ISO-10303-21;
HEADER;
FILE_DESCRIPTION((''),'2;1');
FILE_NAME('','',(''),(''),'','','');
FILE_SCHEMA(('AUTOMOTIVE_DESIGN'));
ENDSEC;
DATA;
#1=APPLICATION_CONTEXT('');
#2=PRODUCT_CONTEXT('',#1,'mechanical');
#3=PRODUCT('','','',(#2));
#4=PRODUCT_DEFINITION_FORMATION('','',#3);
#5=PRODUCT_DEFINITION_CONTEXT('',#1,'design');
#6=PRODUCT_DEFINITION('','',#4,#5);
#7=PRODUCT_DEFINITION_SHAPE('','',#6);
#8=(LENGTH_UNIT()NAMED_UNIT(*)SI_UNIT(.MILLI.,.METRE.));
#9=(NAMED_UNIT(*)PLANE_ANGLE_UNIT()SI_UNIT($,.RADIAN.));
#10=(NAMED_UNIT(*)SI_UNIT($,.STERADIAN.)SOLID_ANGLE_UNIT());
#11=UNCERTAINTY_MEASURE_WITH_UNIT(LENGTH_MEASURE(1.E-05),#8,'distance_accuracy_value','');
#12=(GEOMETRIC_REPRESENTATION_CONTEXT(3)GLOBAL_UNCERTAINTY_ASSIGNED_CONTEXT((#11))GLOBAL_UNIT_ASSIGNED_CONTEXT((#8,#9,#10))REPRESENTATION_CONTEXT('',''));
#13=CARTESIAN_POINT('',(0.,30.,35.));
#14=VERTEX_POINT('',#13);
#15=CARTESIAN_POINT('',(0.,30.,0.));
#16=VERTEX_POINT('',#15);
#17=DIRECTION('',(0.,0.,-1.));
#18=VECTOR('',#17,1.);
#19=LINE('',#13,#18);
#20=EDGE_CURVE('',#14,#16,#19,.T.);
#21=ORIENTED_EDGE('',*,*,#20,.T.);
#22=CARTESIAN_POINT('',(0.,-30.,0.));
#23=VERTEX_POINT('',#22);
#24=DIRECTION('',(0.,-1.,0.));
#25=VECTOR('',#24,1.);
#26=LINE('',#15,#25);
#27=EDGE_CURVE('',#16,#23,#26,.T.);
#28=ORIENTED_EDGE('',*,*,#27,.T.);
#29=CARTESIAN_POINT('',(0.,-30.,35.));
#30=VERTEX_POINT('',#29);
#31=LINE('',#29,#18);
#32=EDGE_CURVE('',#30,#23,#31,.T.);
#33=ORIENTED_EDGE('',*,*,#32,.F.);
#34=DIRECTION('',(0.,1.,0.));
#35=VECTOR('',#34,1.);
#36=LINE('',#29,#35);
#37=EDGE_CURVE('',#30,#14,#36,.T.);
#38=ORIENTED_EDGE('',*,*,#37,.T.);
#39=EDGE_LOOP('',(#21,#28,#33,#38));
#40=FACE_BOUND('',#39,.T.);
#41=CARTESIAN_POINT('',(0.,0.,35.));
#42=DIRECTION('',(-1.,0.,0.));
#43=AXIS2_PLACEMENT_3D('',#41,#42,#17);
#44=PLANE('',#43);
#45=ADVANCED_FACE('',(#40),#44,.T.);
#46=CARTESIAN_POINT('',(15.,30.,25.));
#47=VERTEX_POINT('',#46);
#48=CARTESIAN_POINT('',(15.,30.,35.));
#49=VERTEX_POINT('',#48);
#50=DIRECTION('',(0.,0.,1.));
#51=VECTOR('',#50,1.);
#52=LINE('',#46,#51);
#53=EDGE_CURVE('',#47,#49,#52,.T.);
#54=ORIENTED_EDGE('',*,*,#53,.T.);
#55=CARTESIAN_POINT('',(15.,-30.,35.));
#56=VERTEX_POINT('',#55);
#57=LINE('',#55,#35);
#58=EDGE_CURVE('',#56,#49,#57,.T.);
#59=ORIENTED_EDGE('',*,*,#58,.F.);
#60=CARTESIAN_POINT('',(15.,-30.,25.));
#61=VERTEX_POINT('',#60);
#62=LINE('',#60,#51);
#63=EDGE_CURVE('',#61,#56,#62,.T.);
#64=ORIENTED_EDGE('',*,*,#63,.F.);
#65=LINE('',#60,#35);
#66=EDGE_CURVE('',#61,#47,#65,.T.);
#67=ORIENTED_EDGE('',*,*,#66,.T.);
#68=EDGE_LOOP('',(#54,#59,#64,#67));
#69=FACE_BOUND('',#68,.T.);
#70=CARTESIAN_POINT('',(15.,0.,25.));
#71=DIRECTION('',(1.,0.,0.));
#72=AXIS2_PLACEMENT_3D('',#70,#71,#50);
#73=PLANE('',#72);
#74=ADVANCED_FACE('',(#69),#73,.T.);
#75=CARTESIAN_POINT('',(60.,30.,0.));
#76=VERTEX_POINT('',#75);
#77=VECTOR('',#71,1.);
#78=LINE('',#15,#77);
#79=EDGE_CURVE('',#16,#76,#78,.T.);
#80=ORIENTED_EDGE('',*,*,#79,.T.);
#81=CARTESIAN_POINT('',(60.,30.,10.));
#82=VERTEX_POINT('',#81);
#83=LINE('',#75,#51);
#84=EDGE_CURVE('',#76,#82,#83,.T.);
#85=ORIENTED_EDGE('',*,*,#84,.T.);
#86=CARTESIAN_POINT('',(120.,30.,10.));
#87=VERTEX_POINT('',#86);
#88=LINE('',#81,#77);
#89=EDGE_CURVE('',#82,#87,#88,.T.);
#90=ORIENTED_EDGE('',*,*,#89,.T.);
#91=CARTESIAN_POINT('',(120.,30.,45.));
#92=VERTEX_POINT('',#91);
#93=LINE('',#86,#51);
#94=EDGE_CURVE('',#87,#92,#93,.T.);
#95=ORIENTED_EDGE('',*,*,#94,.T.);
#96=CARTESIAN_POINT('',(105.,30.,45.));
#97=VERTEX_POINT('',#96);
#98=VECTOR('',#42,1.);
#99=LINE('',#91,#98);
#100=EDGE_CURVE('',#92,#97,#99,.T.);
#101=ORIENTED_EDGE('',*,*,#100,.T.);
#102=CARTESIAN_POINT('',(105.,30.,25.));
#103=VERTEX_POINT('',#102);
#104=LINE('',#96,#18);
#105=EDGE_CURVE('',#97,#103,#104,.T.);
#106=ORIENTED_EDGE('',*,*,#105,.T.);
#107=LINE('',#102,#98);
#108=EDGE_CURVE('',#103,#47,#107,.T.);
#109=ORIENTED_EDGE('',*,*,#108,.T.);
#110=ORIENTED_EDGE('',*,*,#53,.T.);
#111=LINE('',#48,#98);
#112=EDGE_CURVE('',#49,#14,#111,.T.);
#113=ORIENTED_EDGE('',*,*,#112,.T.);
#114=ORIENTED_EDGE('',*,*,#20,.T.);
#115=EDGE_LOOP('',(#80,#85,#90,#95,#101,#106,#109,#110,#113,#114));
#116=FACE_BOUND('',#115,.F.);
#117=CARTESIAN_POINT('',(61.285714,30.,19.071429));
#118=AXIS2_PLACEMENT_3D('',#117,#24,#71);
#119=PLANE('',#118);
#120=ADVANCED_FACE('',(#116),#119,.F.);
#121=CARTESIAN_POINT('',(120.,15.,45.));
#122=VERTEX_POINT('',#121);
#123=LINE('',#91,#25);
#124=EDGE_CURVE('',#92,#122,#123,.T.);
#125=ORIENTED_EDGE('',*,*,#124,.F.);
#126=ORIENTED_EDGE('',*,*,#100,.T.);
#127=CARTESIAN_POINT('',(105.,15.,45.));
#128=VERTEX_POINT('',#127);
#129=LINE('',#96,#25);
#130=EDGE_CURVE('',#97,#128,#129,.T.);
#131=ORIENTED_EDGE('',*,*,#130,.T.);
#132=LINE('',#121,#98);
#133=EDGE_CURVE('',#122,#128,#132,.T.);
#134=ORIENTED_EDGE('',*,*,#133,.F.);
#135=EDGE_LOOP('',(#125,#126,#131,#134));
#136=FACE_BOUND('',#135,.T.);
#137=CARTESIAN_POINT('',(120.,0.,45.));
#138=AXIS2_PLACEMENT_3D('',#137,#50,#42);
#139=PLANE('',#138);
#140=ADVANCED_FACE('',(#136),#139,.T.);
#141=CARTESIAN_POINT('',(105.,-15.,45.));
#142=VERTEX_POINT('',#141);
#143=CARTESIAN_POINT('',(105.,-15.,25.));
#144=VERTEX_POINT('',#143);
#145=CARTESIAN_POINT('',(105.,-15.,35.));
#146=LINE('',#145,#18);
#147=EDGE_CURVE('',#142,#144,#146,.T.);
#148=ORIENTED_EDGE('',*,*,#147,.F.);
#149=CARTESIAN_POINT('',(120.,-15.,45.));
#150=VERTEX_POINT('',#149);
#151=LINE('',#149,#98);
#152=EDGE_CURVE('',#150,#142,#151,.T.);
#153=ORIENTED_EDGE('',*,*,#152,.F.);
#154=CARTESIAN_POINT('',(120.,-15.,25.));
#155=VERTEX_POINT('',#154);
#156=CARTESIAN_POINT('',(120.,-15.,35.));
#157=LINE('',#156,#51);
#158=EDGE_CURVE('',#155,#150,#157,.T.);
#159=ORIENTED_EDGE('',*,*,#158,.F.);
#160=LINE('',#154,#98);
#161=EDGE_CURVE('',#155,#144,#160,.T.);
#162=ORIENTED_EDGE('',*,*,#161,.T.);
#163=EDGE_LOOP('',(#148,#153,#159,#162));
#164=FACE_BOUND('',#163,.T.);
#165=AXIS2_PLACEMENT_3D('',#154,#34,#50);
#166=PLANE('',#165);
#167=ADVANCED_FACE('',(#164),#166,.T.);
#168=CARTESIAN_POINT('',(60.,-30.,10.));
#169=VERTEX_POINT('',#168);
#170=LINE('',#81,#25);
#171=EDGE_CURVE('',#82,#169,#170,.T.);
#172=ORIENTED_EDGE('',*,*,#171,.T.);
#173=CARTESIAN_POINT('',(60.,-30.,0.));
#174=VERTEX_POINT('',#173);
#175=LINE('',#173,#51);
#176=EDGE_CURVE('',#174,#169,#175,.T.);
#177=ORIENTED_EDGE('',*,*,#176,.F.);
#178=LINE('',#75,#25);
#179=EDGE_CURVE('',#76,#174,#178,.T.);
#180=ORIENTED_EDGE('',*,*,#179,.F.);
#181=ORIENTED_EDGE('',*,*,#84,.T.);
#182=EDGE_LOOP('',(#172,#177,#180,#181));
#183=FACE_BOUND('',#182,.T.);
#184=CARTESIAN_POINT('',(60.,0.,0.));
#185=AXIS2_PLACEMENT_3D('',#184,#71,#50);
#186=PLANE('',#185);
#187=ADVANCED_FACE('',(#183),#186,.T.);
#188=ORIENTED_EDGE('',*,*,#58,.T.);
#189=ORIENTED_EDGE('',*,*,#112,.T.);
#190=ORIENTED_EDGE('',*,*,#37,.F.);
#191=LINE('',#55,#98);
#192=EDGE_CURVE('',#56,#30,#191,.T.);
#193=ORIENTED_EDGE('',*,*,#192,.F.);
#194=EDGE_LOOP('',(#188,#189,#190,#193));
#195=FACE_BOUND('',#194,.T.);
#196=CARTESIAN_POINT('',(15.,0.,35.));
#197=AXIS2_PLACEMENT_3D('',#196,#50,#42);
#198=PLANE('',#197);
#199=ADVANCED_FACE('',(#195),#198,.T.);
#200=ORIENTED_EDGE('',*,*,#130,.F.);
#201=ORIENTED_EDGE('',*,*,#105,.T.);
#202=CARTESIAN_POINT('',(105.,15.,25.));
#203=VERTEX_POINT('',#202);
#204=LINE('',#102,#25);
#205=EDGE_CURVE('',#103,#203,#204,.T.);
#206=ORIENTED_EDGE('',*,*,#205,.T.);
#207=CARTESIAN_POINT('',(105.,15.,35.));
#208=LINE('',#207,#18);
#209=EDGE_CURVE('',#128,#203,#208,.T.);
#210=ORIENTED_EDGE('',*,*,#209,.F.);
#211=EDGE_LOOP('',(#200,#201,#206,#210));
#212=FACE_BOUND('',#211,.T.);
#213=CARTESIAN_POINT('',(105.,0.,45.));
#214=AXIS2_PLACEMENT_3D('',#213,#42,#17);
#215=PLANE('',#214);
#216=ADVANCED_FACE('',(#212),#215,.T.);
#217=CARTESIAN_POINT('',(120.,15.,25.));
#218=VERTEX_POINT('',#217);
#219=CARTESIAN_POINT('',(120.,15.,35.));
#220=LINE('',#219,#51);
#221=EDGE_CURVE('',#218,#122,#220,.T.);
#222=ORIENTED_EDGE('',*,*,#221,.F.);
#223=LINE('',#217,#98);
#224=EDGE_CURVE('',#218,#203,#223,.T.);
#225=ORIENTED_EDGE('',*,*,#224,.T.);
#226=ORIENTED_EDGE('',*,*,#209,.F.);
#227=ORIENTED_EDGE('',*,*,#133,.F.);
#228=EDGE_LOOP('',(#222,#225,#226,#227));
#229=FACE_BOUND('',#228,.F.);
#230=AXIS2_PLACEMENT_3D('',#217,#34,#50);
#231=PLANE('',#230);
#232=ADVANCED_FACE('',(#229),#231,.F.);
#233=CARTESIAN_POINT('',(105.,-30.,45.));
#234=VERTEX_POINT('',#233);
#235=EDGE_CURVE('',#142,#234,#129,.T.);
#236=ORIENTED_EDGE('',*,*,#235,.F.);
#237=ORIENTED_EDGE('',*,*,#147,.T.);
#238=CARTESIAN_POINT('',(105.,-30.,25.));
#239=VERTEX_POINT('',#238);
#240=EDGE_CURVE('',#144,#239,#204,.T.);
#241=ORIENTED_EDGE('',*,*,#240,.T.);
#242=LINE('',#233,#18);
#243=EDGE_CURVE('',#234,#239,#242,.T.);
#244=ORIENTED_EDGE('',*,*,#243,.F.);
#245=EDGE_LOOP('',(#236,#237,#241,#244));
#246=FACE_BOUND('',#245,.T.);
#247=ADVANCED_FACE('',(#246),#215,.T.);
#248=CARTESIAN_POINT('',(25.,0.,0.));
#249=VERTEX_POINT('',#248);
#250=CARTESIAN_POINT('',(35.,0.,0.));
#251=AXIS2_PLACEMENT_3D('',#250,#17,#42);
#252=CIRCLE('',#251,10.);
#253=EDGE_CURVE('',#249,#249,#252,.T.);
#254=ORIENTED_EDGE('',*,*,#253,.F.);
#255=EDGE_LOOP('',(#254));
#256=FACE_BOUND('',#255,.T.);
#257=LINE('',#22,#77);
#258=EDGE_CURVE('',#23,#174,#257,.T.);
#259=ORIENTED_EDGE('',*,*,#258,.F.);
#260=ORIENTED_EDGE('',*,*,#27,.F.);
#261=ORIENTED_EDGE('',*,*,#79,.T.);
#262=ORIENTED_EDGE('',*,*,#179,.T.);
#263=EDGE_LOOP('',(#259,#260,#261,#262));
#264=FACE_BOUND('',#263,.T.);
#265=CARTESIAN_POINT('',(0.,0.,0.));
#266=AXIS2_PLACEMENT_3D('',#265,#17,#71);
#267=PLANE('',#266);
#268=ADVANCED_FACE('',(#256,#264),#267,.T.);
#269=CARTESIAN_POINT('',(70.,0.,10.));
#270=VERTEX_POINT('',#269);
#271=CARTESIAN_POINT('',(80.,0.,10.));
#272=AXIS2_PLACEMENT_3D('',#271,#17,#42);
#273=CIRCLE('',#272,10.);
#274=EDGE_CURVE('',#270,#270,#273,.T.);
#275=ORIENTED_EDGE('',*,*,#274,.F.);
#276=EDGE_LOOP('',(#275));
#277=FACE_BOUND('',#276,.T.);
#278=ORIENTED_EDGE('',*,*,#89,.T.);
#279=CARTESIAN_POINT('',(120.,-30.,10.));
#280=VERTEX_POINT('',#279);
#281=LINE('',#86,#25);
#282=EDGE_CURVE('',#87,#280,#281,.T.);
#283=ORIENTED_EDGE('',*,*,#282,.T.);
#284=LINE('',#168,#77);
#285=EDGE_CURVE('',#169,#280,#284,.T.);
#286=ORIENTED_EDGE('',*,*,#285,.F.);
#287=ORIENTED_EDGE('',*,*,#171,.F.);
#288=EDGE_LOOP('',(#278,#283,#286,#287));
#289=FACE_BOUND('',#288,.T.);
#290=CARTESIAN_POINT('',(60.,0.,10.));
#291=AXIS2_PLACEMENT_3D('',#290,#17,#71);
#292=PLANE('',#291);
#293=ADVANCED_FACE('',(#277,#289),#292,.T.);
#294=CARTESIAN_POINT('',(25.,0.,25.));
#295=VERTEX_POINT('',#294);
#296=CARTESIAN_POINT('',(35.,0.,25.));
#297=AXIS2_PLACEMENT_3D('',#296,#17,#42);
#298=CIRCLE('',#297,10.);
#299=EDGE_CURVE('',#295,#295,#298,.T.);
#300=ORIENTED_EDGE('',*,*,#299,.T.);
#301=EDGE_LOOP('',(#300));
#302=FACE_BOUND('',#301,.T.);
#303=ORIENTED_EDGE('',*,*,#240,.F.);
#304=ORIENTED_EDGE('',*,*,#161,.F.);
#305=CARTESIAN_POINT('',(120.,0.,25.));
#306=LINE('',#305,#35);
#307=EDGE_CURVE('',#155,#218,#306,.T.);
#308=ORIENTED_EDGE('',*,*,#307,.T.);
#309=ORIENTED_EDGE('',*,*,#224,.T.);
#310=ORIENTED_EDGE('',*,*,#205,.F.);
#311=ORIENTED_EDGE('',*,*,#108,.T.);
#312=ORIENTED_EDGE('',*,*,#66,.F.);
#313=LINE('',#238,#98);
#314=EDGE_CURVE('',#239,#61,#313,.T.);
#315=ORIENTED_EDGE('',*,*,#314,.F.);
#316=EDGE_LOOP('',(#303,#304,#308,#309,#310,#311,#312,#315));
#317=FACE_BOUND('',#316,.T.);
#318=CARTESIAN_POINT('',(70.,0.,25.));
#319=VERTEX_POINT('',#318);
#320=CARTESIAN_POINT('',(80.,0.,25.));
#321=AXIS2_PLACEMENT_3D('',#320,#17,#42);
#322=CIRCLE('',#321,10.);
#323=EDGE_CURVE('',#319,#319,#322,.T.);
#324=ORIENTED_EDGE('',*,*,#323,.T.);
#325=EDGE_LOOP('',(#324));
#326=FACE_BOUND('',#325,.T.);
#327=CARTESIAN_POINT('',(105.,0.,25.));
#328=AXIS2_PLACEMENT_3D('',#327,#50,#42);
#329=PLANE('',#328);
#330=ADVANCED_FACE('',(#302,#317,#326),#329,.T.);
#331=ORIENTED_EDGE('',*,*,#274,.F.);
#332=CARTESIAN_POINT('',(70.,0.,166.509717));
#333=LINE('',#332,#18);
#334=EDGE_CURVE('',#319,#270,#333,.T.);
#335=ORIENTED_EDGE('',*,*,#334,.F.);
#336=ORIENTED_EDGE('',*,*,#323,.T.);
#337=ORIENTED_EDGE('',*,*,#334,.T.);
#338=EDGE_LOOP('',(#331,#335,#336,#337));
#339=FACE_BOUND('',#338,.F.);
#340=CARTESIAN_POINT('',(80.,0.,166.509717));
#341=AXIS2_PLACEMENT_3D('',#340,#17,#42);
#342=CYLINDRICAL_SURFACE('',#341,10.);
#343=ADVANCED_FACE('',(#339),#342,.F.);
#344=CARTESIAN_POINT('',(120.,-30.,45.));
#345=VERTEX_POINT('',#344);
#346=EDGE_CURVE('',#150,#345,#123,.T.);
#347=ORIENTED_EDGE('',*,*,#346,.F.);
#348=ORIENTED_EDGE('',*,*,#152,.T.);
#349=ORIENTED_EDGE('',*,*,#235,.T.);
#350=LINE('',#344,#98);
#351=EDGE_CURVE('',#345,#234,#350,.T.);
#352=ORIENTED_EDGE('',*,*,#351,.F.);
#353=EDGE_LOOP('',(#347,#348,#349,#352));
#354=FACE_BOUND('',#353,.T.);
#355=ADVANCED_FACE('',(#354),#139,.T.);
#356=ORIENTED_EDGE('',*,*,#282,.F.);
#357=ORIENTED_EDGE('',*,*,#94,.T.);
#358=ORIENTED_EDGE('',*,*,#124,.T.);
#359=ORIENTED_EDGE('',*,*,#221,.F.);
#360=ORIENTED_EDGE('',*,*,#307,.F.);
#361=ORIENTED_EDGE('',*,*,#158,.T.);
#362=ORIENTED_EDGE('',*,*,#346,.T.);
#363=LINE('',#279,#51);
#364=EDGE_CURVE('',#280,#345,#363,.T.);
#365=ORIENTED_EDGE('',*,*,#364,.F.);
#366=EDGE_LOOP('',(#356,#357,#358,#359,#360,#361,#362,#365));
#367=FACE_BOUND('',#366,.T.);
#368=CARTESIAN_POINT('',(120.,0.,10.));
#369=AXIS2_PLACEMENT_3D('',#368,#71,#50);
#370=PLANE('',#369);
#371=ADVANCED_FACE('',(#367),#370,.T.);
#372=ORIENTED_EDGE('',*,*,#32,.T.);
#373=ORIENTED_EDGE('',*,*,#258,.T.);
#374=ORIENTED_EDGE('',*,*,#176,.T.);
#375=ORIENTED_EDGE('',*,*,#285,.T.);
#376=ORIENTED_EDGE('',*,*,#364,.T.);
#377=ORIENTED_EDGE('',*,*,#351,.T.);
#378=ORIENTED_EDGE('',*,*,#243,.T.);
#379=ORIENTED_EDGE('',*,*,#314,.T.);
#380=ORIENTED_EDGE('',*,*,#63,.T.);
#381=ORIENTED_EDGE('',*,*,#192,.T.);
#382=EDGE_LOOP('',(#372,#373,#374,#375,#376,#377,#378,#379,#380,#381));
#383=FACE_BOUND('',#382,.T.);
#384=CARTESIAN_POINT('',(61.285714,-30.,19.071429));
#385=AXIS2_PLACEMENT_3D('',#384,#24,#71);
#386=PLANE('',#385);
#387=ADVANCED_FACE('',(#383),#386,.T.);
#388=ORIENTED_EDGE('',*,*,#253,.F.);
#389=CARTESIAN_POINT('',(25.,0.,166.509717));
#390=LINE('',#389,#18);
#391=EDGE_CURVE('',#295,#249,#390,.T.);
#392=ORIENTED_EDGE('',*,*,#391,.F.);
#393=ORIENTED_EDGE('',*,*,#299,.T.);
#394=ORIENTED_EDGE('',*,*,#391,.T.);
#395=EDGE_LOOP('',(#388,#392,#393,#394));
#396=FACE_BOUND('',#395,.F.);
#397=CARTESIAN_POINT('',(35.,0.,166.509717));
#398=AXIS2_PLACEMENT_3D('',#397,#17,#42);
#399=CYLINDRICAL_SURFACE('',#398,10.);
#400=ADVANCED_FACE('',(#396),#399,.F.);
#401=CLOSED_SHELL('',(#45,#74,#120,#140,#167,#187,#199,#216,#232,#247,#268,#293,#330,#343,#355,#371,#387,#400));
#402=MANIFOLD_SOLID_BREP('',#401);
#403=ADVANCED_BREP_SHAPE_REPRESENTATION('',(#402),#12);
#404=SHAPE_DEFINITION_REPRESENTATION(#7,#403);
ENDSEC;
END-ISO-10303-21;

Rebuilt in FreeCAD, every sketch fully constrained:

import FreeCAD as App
import Part
import Sketcher
Q = App.Units.Quantity

doc = App.newDocument("Part")
params = doc.addObject("Spreadsheet::Sheet", "Params")
for row, (alias, value) in enumerate([
    ("sketch1_width", "60 mm"),
    ("sketch1_width2", "15 mm"),
    ("sketch1_height", "35 mm"),
    ("sketch1_height2", "10 mm"),
    ("pad1_length", "60 mm"),
    ("sketch2_width", "30 mm"),
    ("sketch2_height", "20 mm"),
    ("pocket1_length", "25 mm"),
    ("sketch3_diameter", "20 mm"),
    ("hole_diameter", "20 mm"),
], start=1):
    params.set(f"A{row}", alias)
    params.set(f"B{row}", "=" + value)
    params.setAlias(f"B{row}", alias)

body = doc.addObject("PartDesign::Body", "Body")

sketch1 = body.newObject("Sketcher::SketchObject", "Sketch")
sketch1.AttachmentSupport = (doc.getObject("XZ_Plane"), [""])
sketch1.MapMode = "FlatFace"
sketch1.addGeometry(Part.LineSegment(App.Vector(0, 35, 0), App.Vector(0, 0, 0)), False)
sketch1.addGeometry(Part.LineSegment(App.Vector(0, 0, 0), App.Vector(60, 0, 0)), False)
sketch1.addGeometry(Part.LineSegment(App.Vector(60, 0, 0), App.Vector(60, 10, 0)), False)
sketch1.addGeometry(Part.LineSegment(App.Vector(60, 10, 0), App.Vector(120, 10, 0)), False)
sketch1.addGeometry(Part.LineSegment(App.Vector(120, 10, 0), App.Vector(120, 45, 0)), False)
sketch1.addGeometry(Part.LineSegment(App.Vector(120, 45, 0), App.Vector(105, 45, 0)), False)
sketch1.addGeometry(Part.LineSegment(App.Vector(105, 45, 0), App.Vector(105, 25, 0)), False)
sketch1.addGeometry(Part.LineSegment(App.Vector(105, 25, 0), App.Vector(15, 25, 0)), False)
sketch1.addGeometry(Part.LineSegment(App.Vector(15, 25, 0), App.Vector(15, 35, 0)), False)
sketch1.addGeometry(Part.LineSegment(App.Vector(15, 35, 0), App.Vector(0, 35, 0)), False)
sketch1.addConstraint(Sketcher.Constraint("Coincident", 0, 2, 1, 1))
sketch1.addConstraint(Sketcher.Constraint("Coincident", 1, 2, 2, 1))
sketch1.addConstraint(Sketcher.Constraint("Coincident", 2, 2, 3, 1))
sketch1.addConstraint(Sketcher.Constraint("Coincident", 3, 2, 4, 1))
sketch1.addConstraint(Sketcher.Constraint("Coincident", 4, 2, 5, 1))
sketch1.addConstraint(Sketcher.Constraint("Coincident", 5, 2, 6, 1))
sketch1.addConstraint(Sketcher.Constraint("Coincident", 6, 2, 7, 1))
sketch1.addConstraint(Sketcher.Constraint("Coincident", 7, 2, 8, 1))
sketch1.addConstraint(Sketcher.Constraint("Coincident", 8, 2, 9, 1))
sketch1.addConstraint(Sketcher.Constraint("Coincident", 9, 2, 0, 1))
sketch1.addConstraint(Sketcher.Constraint("Vertical", 0))
sketch1.addConstraint(Sketcher.Constraint("Horizontal", 1))
sketch1.addConstraint(Sketcher.Constraint("Vertical", 2))
sketch1.addConstraint(Sketcher.Constraint("Horizontal", 3))
sketch1.addConstraint(Sketcher.Constraint("Vertical", 4))
sketch1.addConstraint(Sketcher.Constraint("Horizontal", 5))
sketch1.addConstraint(Sketcher.Constraint("Vertical", 6))
sketch1.addConstraint(Sketcher.Constraint("Horizontal", 7))
sketch1.addConstraint(Sketcher.Constraint("Vertical", 8))
sketch1.addConstraint(Sketcher.Constraint("Horizontal", 9))
sketch1.addConstraint(Sketcher.Constraint("Coincident", 0, 2, -1, 1))
sketch1.addConstraint(Sketcher.Constraint("Equal", 1, 3))
sketch1.addConstraint(Sketcher.Constraint("Equal", 5, 9))
sketch1.addConstraint(Sketcher.Constraint("Equal", 0, 4))
sketch1.addConstraint(Sketcher.Constraint("Equal", 2, 8))
sketch1.addConstraint(Sketcher.Constraint("DistanceX", 1, 1, 1, 2, Q("60 mm")))
sketch1.addConstraint(Sketcher.Constraint("DistanceX", 5, 2, 5, 1, Q("15 mm")))
sketch1.addConstraint(Sketcher.Constraint("DistanceY", 0, 2, 0, 1, Q("35 mm")))
sketch1.addConstraint(Sketcher.Constraint("DistanceY", 2, 1, 2, 2, Q("10 mm")))
sketch1.setExpression("Constraints[25]", "Params.sketch1_width")
sketch1.setExpression("Constraints[26]", "Params.sketch1_width2")
sketch1.setExpression("Constraints[27]", "Params.sketch1_height")
sketch1.setExpression("Constraints[28]", "Params.sketch1_height2")
pad1 = body.newObject("PartDesign::Pad", "Pad")
pad1.Profile = sketch1
pad1.setExpression("Length", "Params.pad1_length")
pad1.Midplane = True

sketch2 = body.newObject("Sketcher::SketchObject", "Sketch001")
sketch2.AttachmentSupport = (doc.getObject("YZ_Plane"), [""])
sketch2.MapMode = "FlatFace"
sketch2.AttachmentOffset = App.Placement(App.Vector(0, 0, 120), App.Rotation())
sketch2.addGeometry(Part.LineSegment(App.Vector(-15, 45, 0), App.Vector(-15, 25, 0)), False)
sketch2.addGeometry(Part.LineSegment(App.Vector(-15, 25, 0), App.Vector(15, 25, 0)), False)
sketch2.addGeometry(Part.LineSegment(App.Vector(15, 25, 0), App.Vector(15, 45, 0)), False)
sketch2.addGeometry(Part.LineSegment(App.Vector(15, 45, 0), App.Vector(-15, 45, 0)), False)
sketch2.addConstraint(Sketcher.Constraint("Coincident", 0, 2, 1, 1))
sketch2.addConstraint(Sketcher.Constraint("Coincident", 1, 2, 2, 1))
sketch2.addConstraint(Sketcher.Constraint("Coincident", 2, 2, 3, 1))
sketch2.addConstraint(Sketcher.Constraint("Coincident", 3, 2, 0, 1))
sketch2.addConstraint(Sketcher.Constraint("Vertical", 0))
sketch2.addConstraint(Sketcher.Constraint("Horizontal", 1))
sketch2.addConstraint(Sketcher.Constraint("Vertical", 2))
sketch2.addConstraint(Sketcher.Constraint("Horizontal", 3))
sketch2.addConstraint(Sketcher.Constraint("DistanceX", 1, 1, 1, 2, Q("30 mm")))
sketch2.addConstraint(Sketcher.Constraint("DistanceY", 0, 2, 0, 1, Q("20 mm")))
sketch2.addConstraint(Sketcher.Constraint("DistanceX", 0, 2, -1, 1, Q("15 mm")))
sketch2.addConstraint(Sketcher.Constraint("DistanceY", -1, 1, 0, 2, Q("25 mm")))
sketch2.setExpression("Constraints[8]", "Params.sketch2_width")
sketch2.setExpression("Constraints[9]", "Params.sketch2_height")
pocket1 = body.newObject("PartDesign::Pocket", "Pocket")
pocket1.Profile = sketch2
pocket1.setExpression("Length", "Params.pocket1_length")

sketch3 = body.newObject("Sketcher::SketchObject", "Sketch002")
sketch3.AttachmentSupport = (doc.getObject("XY_Plane"), [""])
sketch3.MapMode = "FlatFace"
sketch3.AttachmentOffset = App.Placement(App.Vector(0, 0, 25), App.Rotation())
sketch3.addGeometry(Part.Circle(App.Vector(35, 0, 0), App.Vector(0, 0, 1), 10), False)
sketch3.addGeometry(Part.Circle(App.Vector(80, 0, 0), App.Vector(0, 0, 1), 10), False)
sketch3.addConstraint(Sketcher.Constraint("Equal", 0, 1))
sketch3.addConstraint(Sketcher.Constraint("PointOnObject", 0, 3, -1))
sketch3.addConstraint(Sketcher.Constraint("PointOnObject", 1, 3, -1))
sketch3.addConstraint(Sketcher.Constraint("Diameter", 0, Q("20 mm")))
sketch3.addConstraint(Sketcher.Constraint("DistanceX", -1, 1, 0, 3, Q("35 mm")))
sketch3.addConstraint(Sketcher.Constraint("DistanceX", -1, 1, 1, 3, Q("80 mm")))
sketch3.setExpression("Constraints[3]", "Params.sketch3_diameter")
doc.recompute()
hole = body.newObject("PartDesign::Hole", "Hole")
hole.Profile = sketch3
hole.ThreadType = "None"
hole.setExpression("Diameter", "Params.hole_diameter")
hole.DepthType = "ThroughAll"

doc.recompute()
